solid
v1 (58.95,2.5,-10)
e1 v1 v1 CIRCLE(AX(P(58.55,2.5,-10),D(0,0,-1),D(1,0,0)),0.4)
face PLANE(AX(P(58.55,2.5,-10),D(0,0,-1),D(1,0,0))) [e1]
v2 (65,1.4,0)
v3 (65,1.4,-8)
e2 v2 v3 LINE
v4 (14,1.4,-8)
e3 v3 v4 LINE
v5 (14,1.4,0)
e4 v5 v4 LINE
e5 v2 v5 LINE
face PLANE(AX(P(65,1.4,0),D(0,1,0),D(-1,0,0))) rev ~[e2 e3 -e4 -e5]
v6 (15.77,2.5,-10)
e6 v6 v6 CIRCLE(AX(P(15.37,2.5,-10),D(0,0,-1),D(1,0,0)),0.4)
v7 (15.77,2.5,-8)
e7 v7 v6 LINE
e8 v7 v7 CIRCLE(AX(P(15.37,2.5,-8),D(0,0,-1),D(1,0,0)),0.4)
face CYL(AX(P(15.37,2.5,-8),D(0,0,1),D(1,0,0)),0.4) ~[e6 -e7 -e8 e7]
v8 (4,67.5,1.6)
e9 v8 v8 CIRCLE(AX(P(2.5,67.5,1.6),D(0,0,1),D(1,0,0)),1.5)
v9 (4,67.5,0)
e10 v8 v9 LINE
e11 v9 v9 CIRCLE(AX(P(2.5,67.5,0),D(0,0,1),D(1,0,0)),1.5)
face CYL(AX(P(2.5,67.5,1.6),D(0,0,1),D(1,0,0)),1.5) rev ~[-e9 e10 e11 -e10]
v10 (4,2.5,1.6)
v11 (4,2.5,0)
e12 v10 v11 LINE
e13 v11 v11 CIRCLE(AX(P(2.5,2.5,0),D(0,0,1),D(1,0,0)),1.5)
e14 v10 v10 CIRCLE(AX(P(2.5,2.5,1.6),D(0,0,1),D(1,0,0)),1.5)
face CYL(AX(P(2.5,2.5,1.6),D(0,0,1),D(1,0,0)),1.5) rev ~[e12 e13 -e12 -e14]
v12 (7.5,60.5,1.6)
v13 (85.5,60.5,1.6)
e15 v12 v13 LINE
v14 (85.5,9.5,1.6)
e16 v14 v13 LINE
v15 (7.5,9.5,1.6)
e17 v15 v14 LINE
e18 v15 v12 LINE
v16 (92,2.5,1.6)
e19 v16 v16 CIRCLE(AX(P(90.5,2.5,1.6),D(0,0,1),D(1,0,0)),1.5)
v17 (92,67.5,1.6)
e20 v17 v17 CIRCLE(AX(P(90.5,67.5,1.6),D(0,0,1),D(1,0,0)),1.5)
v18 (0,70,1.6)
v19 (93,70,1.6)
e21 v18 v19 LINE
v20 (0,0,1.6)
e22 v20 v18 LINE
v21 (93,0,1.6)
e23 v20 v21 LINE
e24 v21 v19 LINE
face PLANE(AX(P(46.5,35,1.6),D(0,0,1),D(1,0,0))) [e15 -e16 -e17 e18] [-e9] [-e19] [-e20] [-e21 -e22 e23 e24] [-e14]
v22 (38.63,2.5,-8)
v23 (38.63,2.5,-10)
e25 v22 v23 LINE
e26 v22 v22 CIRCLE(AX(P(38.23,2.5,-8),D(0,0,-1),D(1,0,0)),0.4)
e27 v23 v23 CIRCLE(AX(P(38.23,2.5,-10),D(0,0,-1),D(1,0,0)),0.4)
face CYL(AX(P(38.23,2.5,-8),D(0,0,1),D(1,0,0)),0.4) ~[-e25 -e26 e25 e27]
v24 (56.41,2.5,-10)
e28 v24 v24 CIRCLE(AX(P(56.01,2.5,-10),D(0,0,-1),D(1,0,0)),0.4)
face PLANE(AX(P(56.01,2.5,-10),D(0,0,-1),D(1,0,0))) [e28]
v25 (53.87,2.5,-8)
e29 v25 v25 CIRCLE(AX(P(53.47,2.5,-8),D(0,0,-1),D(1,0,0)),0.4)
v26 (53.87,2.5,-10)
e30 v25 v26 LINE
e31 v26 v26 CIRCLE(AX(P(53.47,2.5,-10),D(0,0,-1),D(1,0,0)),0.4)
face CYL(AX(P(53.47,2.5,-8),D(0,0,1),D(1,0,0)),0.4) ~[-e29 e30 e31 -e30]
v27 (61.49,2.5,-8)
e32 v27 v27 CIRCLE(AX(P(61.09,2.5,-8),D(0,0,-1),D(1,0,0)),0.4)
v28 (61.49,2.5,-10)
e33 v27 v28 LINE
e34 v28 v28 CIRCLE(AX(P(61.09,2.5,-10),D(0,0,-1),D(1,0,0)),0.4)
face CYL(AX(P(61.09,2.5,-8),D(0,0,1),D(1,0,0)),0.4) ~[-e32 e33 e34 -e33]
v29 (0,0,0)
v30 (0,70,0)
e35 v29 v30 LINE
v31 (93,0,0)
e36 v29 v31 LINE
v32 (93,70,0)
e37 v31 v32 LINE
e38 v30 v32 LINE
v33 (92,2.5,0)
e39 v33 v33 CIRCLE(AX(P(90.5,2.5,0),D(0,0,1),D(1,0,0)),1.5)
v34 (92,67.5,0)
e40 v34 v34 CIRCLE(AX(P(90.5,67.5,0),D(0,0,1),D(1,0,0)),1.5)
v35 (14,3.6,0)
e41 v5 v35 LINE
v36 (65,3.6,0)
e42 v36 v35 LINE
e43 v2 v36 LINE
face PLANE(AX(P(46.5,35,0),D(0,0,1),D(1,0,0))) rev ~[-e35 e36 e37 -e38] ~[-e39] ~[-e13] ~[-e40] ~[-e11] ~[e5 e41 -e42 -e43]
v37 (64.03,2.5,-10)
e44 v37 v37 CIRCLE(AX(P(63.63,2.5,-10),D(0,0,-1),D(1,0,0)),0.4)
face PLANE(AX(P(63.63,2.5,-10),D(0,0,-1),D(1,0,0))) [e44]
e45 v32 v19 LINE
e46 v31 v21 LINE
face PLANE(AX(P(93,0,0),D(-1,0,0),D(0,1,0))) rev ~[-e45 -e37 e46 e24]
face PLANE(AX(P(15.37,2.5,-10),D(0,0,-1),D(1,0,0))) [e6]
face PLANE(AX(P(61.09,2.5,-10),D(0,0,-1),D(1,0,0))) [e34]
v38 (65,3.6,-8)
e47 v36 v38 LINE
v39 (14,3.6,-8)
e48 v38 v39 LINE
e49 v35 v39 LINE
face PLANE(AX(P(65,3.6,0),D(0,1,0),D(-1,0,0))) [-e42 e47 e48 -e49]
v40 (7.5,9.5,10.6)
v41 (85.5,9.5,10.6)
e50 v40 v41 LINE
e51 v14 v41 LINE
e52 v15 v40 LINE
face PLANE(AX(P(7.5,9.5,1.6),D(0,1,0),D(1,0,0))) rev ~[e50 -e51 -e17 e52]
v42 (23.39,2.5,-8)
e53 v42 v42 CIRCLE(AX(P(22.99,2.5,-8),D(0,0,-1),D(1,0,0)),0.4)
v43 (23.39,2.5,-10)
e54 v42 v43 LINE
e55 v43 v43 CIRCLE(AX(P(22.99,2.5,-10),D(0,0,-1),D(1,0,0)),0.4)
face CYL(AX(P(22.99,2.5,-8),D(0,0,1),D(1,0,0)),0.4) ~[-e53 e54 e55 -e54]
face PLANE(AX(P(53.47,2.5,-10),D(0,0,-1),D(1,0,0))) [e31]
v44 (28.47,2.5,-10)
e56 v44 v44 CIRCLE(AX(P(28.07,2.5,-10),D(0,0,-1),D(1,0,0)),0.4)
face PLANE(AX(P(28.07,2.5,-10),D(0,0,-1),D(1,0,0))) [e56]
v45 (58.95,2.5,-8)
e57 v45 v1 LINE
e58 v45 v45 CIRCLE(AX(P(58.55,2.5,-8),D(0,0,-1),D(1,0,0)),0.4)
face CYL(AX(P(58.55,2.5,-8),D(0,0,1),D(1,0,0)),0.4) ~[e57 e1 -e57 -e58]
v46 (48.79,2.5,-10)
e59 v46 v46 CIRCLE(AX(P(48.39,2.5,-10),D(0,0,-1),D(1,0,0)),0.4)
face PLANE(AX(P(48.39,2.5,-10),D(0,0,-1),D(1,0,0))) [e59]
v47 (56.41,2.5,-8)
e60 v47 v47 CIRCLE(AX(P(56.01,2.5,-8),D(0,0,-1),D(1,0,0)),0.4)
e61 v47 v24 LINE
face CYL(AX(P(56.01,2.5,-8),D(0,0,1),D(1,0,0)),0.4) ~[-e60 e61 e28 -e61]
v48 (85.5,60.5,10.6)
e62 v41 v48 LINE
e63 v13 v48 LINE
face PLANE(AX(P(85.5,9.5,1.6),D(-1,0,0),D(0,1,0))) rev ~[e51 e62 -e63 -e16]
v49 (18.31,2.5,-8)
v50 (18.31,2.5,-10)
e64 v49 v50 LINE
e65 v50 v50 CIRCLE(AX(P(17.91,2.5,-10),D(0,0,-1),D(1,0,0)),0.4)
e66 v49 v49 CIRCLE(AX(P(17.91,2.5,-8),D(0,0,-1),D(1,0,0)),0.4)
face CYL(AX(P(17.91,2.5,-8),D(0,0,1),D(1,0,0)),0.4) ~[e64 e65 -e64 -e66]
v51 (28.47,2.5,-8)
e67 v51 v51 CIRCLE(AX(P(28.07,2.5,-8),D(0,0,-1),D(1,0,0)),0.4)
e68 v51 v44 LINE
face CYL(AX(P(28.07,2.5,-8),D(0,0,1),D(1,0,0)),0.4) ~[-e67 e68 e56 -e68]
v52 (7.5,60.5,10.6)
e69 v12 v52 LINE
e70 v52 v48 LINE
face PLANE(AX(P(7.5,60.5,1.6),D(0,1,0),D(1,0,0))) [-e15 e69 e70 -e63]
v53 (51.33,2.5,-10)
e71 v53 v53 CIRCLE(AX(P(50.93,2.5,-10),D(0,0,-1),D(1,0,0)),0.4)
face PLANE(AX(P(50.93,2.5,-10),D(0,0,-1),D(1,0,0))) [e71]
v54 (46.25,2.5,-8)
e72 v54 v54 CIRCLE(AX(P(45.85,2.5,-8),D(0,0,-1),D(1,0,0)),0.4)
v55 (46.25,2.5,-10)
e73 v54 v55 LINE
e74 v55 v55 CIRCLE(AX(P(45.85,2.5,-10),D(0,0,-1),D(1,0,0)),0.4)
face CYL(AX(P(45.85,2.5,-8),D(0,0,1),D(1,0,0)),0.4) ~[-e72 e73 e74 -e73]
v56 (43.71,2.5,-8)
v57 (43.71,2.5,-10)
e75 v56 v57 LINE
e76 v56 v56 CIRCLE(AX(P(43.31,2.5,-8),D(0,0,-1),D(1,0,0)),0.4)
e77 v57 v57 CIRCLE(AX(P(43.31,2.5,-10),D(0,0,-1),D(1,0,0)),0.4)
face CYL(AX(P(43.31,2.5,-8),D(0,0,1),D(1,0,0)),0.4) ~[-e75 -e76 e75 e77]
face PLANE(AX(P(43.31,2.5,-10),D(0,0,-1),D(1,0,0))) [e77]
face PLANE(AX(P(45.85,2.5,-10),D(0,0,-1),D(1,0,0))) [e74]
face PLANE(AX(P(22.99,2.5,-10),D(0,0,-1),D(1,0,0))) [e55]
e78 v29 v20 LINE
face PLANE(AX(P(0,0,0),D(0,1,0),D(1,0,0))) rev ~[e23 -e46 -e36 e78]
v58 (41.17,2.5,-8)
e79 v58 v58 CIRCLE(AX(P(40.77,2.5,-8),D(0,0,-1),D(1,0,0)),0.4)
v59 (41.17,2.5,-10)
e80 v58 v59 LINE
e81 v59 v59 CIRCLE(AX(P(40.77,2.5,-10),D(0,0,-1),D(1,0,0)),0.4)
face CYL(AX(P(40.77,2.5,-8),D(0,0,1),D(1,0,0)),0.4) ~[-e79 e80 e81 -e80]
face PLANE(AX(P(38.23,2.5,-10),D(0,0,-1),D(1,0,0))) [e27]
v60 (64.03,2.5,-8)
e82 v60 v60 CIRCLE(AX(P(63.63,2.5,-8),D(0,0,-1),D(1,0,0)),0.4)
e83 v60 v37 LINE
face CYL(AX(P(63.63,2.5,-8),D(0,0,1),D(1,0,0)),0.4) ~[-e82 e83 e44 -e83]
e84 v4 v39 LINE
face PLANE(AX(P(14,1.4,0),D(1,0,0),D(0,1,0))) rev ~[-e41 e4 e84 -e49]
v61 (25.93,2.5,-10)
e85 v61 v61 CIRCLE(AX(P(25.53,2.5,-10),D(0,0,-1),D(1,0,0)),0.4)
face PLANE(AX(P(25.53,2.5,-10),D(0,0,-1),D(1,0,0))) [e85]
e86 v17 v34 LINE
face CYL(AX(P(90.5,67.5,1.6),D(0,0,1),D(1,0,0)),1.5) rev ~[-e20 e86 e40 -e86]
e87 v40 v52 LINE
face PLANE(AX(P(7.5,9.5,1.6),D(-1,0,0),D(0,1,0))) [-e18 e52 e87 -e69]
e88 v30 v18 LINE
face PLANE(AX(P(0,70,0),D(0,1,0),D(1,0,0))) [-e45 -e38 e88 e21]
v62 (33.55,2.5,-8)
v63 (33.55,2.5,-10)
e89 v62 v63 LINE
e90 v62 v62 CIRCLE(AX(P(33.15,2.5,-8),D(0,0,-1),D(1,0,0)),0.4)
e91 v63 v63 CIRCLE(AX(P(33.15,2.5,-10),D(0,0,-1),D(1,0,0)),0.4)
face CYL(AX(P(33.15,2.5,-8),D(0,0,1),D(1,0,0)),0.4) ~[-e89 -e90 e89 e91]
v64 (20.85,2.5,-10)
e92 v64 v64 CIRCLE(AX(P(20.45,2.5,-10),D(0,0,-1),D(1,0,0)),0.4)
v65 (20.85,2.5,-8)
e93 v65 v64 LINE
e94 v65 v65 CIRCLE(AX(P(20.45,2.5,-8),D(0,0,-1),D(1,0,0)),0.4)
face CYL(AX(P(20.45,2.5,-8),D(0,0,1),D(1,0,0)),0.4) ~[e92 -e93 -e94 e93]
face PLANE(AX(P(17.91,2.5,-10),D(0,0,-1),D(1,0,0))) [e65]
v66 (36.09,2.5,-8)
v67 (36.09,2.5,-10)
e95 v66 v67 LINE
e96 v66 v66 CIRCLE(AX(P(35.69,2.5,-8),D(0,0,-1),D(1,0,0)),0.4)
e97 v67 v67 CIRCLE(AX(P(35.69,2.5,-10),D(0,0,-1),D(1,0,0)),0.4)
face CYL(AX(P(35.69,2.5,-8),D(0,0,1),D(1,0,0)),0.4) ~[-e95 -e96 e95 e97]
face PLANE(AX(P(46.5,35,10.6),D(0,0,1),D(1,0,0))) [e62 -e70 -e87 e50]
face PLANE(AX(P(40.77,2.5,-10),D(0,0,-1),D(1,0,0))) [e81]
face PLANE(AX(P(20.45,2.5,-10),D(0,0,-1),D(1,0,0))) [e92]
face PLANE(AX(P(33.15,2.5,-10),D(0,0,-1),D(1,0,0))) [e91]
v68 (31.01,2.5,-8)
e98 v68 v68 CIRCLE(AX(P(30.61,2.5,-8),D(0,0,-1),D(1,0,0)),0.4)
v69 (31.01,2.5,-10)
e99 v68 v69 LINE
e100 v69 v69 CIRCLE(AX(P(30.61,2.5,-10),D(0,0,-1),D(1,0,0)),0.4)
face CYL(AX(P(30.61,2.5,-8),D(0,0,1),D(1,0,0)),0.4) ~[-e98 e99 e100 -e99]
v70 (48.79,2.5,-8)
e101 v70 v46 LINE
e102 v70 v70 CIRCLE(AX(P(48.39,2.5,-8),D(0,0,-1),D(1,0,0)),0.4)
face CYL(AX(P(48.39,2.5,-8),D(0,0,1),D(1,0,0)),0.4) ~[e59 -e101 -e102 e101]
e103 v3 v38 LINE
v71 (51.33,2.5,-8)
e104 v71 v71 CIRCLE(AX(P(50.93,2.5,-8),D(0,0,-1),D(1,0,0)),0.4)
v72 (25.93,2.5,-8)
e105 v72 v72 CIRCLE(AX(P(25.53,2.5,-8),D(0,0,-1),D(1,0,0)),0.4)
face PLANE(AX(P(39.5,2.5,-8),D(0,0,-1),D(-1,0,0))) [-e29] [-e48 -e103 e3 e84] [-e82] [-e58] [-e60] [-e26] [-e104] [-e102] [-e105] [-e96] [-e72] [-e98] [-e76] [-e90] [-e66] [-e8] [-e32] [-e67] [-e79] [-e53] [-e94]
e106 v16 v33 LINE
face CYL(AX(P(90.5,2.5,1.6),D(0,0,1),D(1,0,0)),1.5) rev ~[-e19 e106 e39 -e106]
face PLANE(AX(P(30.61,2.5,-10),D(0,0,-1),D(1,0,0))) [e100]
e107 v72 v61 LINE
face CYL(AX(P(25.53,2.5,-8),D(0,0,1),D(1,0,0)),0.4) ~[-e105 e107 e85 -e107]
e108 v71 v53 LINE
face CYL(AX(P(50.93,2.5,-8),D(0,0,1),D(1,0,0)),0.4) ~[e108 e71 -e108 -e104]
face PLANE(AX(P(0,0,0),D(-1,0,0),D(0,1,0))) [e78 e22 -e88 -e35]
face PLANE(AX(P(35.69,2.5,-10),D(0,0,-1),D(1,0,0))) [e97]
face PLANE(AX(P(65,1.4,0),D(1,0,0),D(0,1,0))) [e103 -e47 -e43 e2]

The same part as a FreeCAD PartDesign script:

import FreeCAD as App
import Part
import Sketcher

V = App.Vector
Q = App.Units.Quantity

doc = App.newDocument("Part")
body = doc.addObject("PartDesign::Body", "Body")

sketch1 = doc.addObject("Sketcher::SketchObject", "Sketch")
body.addObject(sketch1)
sketch1.AttachmentSupport = (doc.XY_Plane, [""])
sketch1.MapMode = "FlatFace"
sketch1.addGeometry([
    Part.LineSegment(V(0, 70, 0), V(0, 0, 0)),
    Part.LineSegment(V(0, 0, 0), V(93, 0, 0)),
    Part.LineSegment(V(93, 0, 0), V(93, 70, 0)),
    Part.LineSegment(V(93, 70, 0), V(0, 70, 0)),
], False)
sketch1.addConstraint([
    Sketcher.Constraint("Coincident", 0, 2, 1, 1),
    Sketcher.Constraint("Coincident", 1, 2, 2, 1),
    Sketcher.Constraint("Coincident", 2, 2, 3, 1),
    Sketcher.Constraint("Coincident", 3, 2, 0, 1),
    Sketcher.Constraint("Vertical", 0),
    Sketcher.Constraint("Horizontal", 1),
    Sketcher.Constraint("Vertical", 2),
    Sketcher.Constraint("Horizontal", 3),
    Sketcher.Constraint("Coincident", 0, 2, -1, 1),
    Sketcher.Constraint("DistanceX", 1, 1, 1, 2, Q("93 mm")),
    Sketcher.Constraint("DistanceY", 0, 2, 0, 1, Q("70 mm")),
])
pad1 = doc.addObject("PartDesign::Pad", "Pad")
body.addObject(pad1)
pad1.Profile = sketch1
pad1.Length = 1.6

sketch2 = doc.addObject("Sketcher::SketchObject", "Sketch001")
body.addObject(sketch2)
sketch2.AttachmentSupport = (doc.XY_Plane, [""])
sketch2.MapMode = "FlatFace"
sketch2.AttachmentOffset = App.Placement(V(0, 0, 1.6), App.Rotation())
sketch2.addGeometry([
    Part.Circle(V(2.5, 2.5, 0), V(0, 0, 1), 1.5),
    Part.Circle(V(90.5, 2.5, 0), V(0, 0, 1), 1.5),
    Part.Circle(V(90.5, 67.5, 0), V(0, 0, 1), 1.5),
    Part.Circle(V(2.5, 67.5, 0), V(0, 0, 1), 1.5),
], False)
sketch2.addConstraint([
    Sketcher.Constraint("Equal", 0, 1),
    Sketcher.Constraint("Equal", 1, 2),
    Sketcher.Constraint("Equal", 2, 3),
    Sketcher.Constraint("Horizontal", 0, 3, 1, 3),
    Sketcher.Constraint("Horizontal", 2, 3, 3, 3),
    Sketcher.Constraint("Vertical", 1, 3, 2, 3),
    Sketcher.Constraint("Vertical", 0, 3, 3, 3),
    Sketcher.Constraint("Diameter", 0, Q("3 mm")),
    Sketcher.Constraint("DistanceX", 0, 3, 1, 3, Q("88 mm")),
    Sketcher.Constraint("DistanceY", 1, 3, 2, 3, Q("65 mm")),
    Sketcher.Constraint("DistanceX", -1, 1, 0, 3, Q("2.5 mm")),
    Sketcher.Constraint("DistanceY", -1, 1, 0, 3, Q("2.5 mm")),
])
pocket1 = doc.addObject("PartDesign::Pocket", "Pocket")
body.addObject(pocket1)
pocket1.Profile = sketch2
pocket1.Type = "ThroughAll"

sketch3 = doc.addObject("Sketcher::SketchObject", "Sketch002")
body.addObject(sketch3)
sketch3.AttachmentSupport = (doc.XY_Plane, [""])
sketch3.MapMode = "FlatFace"
sketch3.AttachmentOffset = App.Placement(V(0, 0, 1.6), App.Rotation())
sketch3.addGeometry([
    Part.LineSegment(V(7.5, 60.5, 0), V(7.5, 9.5, 0)),
    Part.LineSegment(V(7.5, 9.5, 0), V(85.5, 9.5, 0)),
    Part.LineSegment(V(85.5, 9.5, 0), V(85.5, 60.5, 0)),
    Part.LineSegment(V(85.5, 60.5, 0), V(7.5, 60.5, 0)),
], False)
sketch3.addConstraint([
    Sketcher.Constraint("Coincident", 0, 2, 1, 1),
    Sketcher.Constraint("Coincident", 1, 2, 2, 1),
    Sketcher.Constraint("Coincident", 2, 2, 3, 1),
    Sketcher.Constraint("Coincident", 3, 2, 0, 1),
    Sketcher.Constraint("Vertical", 0),
    Sketcher.Constraint("Horizontal", 1),
    Sketcher.Constraint("Vertical", 2),
    Sketcher.Constraint("Horizontal", 3),
    Sketcher.Constraint("DistanceX", 1, 1, 1, 2, Q("78 mm")),
    Sketcher.Constraint("DistanceY", 0, 2, 0, 1, Q("51 mm")),
    Sketcher.Constraint("DistanceX", -1, 1, 0, 2, Q("7.5 mm")),
    Sketcher.Constraint("DistanceY", -1, 1, 0, 2, Q("9.5 mm")),
])
pad2 = doc.addObject("PartDesign::Pad", "Pad001")
body.addObject(pad2)
pad2.Profile = sketch3
pad2.Length = 9

sketch4 = doc.addObject("Sketcher::SketchObject", "Sketch003")
body.addObject(sketch4)
sketch4.AttachmentSupport = (doc.XY_Plane, [""])
sketch4.MapMode = "FlatFace"
sketch4.addGeometry([
    Part.LineSegment(V(65, 3.6, 0), V(65, 1.4, 0)),
    Part.LineSegment(V(65, 1.4, 0), V(14, 1.4, 0)),
    Part.LineSegment(V(14, 1.4, 0), V(14, 3.6, 0)),
    Part.LineSegment(V(14, 3.6, 0), V(65, 3.6, 0)),
], False)
sketch4.addConstraint([
    Sketcher.Constraint("Coincident", 0, 2, 1, 1),
    Sketcher.Constraint("Coincident", 1, 2, 2, 1),
    Sketcher.Constraint("Coincident", 2, 2, 3, 1),
    Sketcher.Constraint("Coincident", 3, 2, 0, 1),
    Sketcher.Constraint("Vertical", 0),
    Sketcher.Constraint("Horizontal", 1),
    Sketcher.Constraint("Vertical", 2),
    Sketcher.Constraint("Horizontal", 3),
    Sketcher.Constraint("DistanceX", 1, 2, 1, 1, Q("51 mm")),
    Sketcher.Constraint("DistanceY", 0, 2, 0, 1, Q("2.2 mm")),
    Sketcher.Constraint("DistanceX", -1, 1, 0, 2, Q("65 mm")),
    Sketcher.Constraint("DistanceY", -1, 1, 0, 2, Q("1.4 mm")),
])
pad3 = doc.addObject("PartDesign::Pad", "Pad002")
body.addObject(pad3)
pad3.Profile = sketch4
pad3.Length = 8
pad3.Reversed = True

sketch5 = doc.addObject("Sketcher::SketchObject", "Sketch004")
body.addObject(sketch5)
sketch5.AttachmentSupport = (doc.XY_Plane, [""])
sketch5.MapMode = "FlatFace"
sketch5.AttachmentOffset = App.Placement(V(0, 0, -8), App.Rotation())
sketch5.addGeometry([
    Part.Circle(V(38.23, 2.5, 0), V(0, 0, 1), 0.4),
    Part.Circle(V(40.77, 2.5, 0), V(0, 0, 1), 0.4),
    Part.Circle(V(43.31, 2.5, 0), V(0, 0, 1), 0.4),
    Part.Circle(V(45.85, 2.5, 0), V(0, 0, 1), 0.4),
    Part.Circle(V(48.39, 2.5, 0), V(0, 0, 1), 0.4),
    Part.Circle(V(50.93, 2.5, 0), V(0, 0, 1), 0.4),
    Part.Circle(V(53.47, 2.5, 0), V(0, 0, 1), 0.4),
    Part.Circle(V(56.01, 2.5, 0), V(0, 0, 1), 0.4),
    Part.Circle(V(58.55, 2.5, 0), V(0, 0, 1), 0.4),
    Part.Circle(V(61.09, 2.5, 0), V(0, 0, 1), 0.4),
    Part.Circle(V(63.63, 2.5, 0), V(0, 0, 1), 0.4),
    Part.Circle(V(35.69, 2.5, 0), V(0, 0, 1), 0.4),
    Part.Circle(V(33.15, 2.5, 0), V(0, 0, 1), 0.4),
    Part.Circle(V(30.61, 2.5, 0), V(0, 0, 1), 0.4),
    Part.Circle(V(28.07, 2.5, 0), V(0, 0, 1), 0.4),
    Part.Circle(V(25.53, 2.5, 0), V(0, 0, 1), 0.4),
    Part.Circle(V(22.99, 2.5, 0), V(0, 0, 1), 0.4),
    Part.Circle(V(20.45, 2.5, 0), V(0, 0, 1), 0.4),
    Part.Circle(V(17.91, 2.5, 0), V(0, 0, 1), 0.4),
    Part.Circle(V(15.37, 2.5, 0), V(0, 0, 1), 0.4),
], False)
sketch5.addConstraint([
    Sketcher.Constraint("Equal", 0, 1),
    Sketcher.Constraint("Equal", 1, 2),
    Sketcher.Constraint("Equal", 2, 3),
    Sketcher.Constraint("Equal", 3, 4),
    Sketcher.Constraint("Equal", 4, 5),
    Sketcher.Constraint("Equal", 5, 6),
    Sketcher.Constraint("Equal", 6, 7),
    Sketcher.Constraint("Equal", 7, 8),
    Sketcher.Constraint("Equal", 8, 9),
    Sketcher.Constraint("Equal", 9, 10),
    Sketcher.Constraint("Equal", 10, 11),
    Sketcher.Constraint("Equal", 11, 12),
    Sketcher.Constraint("Equal", 12, 13),
    Sketcher.Constraint("Equal", 13, 14),
    Sketcher.Constraint("Equal", 14, 15),
    Sketcher.Constraint("Equal", 15, 16),
    Sketcher.Constraint("Equal", 16, 17),
    Sketcher.Constraint("Equal", 17, 18),
    Sketcher.Constraint("Equal", 18, 19),
    Sketcher.Constraint("Horizontal", 0, 3, 1, 3),
    Sketcher.Constraint("Horizontal", 1, 3, 2, 3),
    Sketcher.Constraint("Horizontal", 2, 3, 3, 3),
    Sketcher.Constraint("Horizontal", 3, 3, 4, 3),
    Sketcher.Constraint("Horizontal", 4, 3, 5, 3),
    Sketcher.Constraint("Horizontal", 5, 3, 6, 3),
    Sketcher.Constraint("Horizontal", 6, 3, 7, 3),
    Sketcher.Constraint("Horizontal", 7, 3, 8, 3),
    Sketcher.Constraint("Horizontal", 8, 3, 9, 3),
    Sketcher.Constraint("Horizontal", 9, 3, 10, 3),
    Sketcher.Constraint("Horizontal", 10, 3, 11, 3),
    Sketcher.Constraint("Horizontal", 11, 3, 12, 3),
    Sketcher.Constraint("Horizontal", 12, 3, 13, 3),
    Sketcher.Constraint("Horizontal", 13, 3, 14, 3),
    Sketcher.Constraint("Horizontal", 14, 3, 15, 3),
    Sketcher.Constraint("Horizontal", 15, 3, 16, 3),
    Sketcher.Constraint("Horizontal", 16, 3, 17, 3),
    Sketcher.Constraint("Horizontal", 17, 3, 18, 3),
    Sketcher.Constraint("Horizontal", 18, 3, 19, 3),
    Sketcher.Constraint("Diameter", 0, Q("0.8 mm")),
    Sketcher.Constraint("DistanceY", -1, 1, 0, 3, Q("2.5 mm")),
    Sketcher.Constraint("DistanceX", 0, 3, 5, 3, Q("12.7 mm")),
    Sketcher.Constraint("DistanceX", 1, 3, 6, 3, Q("12.7 mm")),
    Sketcher.Constraint("DistanceX", 2, 3, 7, 3, Q("12.7 mm")),
    Sketcher.Constraint("DistanceX", 3, 3, 8, 3, Q("12.7 mm")),
    Sketcher.Constraint("DistanceX", 4, 3, 9, 3, Q("12.7 mm")),
    Sketcher.Constraint("DistanceX", 5, 3, 10, 3, Q("12.7 mm")),
    Sketcher.Constraint("DistanceX", 11, 3, 4, 3, Q("12.7 mm")),
    Sketcher.Constraint("DistanceX", 12, 3, 3, 3, Q("12.7 mm")),
    Sketcher.Constraint("DistanceX", 13, 3, 2, 3, Q("12.7 mm")),
    Sketcher.Constraint("DistanceX", 14, 3, 1, 3, Q("12.7 mm")),
    Sketcher.Constraint("DistanceX", 15, 3, 0, 3, Q("12.7 mm")),
    Sketcher.Constraint("DistanceX", 16, 3, 11, 3, Q("12.7 mm")),
    Sketcher.Constraint("DistanceX", 17, 3, 12, 3, Q("12.7 mm")),
    Sketcher.Constraint("DistanceX", 18, 3, 13, 3, Q("12.7 mm")),
    Sketcher.Constraint("DistanceX", 19, 3, 14, 3, Q("12.7 mm")),
    Sketcher.Constraint("DistanceX", -1, 1, 0, 3, Q("38.23 mm")),
    Sketcher.Constraint("DistanceX", -1, 1, 1, 3, Q("40.77 mm")),
    Sketcher.Constraint("DistanceX", -1, 1, 2, 3, Q("43.31 mm")),
    Sketcher.Constraint("DistanceX", -1, 1, 3, 3, Q("45.85 mm")),
    Sketcher.Constraint("DistanceX", -1, 1, 4, 3, Q("48.39 mm")),
])
pad4 = doc.addObject("PartDesign::Pad", "Pad003")
body.addObject(pad4)
pad4.Profile = sketch5
pad4.Length = 2
pad4.Reversed = True

doc.recompute()
